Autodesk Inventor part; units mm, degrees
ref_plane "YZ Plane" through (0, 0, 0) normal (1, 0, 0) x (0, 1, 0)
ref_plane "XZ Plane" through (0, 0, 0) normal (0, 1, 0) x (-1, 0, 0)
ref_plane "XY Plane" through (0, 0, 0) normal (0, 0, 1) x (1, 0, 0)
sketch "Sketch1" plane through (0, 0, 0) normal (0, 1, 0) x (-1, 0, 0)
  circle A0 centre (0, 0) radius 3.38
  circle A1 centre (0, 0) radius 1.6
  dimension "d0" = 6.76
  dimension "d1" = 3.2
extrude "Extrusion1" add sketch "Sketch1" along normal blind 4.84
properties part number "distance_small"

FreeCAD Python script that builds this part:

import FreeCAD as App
import Part
import Sketcher

V = App.Vector

doc = App.newDocument("Part")
params = doc.addObject("Spreadsheet::Sheet", "Params")
for row, (alias, value) in enumerate([
    ("sketch1_diameter", "3.2 mm"),
    ("sketch1_diameter2", "6.76 mm"),
    ("pad1_length", "4.84 mm"),
], start=1):
    params.set(f"A{row}", alias)
    params.set(f"B{row}", "=" + value)
    params.setAlias(f"B{row}", alias)

body = doc.addObject("PartDesign::Body", "Body")

# Sketch on XZ plane
sketch1 = doc.addObject("Sketcher::SketchObject", "Sketch")
body.addObject(sketch1)
sketch1.AttachmentSupport = (doc.XZ_Plane, [""])
sketch1.MapMode = "FlatFace"
sketch1.addGeometry([
    Part.Circle(V(0, 0, 0), V(0, 0, 1), 3.4),
    Part.Circle(V(0, 0, 0), V(0, 0, 1), 1.6),
], False)
sketch1.addConstraint([
    Sketcher.Constraint("Coincident", 0, 3, -1, 1),
    Sketcher.Constraint("Coincident", 1, 3, -1, 1),
    Sketcher.Constraint("Diameter", 1, 3.2),
    Sketcher.Constraint("Diameter", 0, 6.76),
])
sketch1.setExpression("Constraints[2]", "Params.sketch1_diameter")
sketch1.setExpression("Constraints[3]", "Params.sketch1_diameter2")
pad1 = doc.addObject("PartDesign::Pad", "Pad")
body.addObject(pad1)
pad1.Profile = sketch1
pad1.setExpression("Length", "Params.pad1_length")
pad1.Reversed = True

doc.recompute()
